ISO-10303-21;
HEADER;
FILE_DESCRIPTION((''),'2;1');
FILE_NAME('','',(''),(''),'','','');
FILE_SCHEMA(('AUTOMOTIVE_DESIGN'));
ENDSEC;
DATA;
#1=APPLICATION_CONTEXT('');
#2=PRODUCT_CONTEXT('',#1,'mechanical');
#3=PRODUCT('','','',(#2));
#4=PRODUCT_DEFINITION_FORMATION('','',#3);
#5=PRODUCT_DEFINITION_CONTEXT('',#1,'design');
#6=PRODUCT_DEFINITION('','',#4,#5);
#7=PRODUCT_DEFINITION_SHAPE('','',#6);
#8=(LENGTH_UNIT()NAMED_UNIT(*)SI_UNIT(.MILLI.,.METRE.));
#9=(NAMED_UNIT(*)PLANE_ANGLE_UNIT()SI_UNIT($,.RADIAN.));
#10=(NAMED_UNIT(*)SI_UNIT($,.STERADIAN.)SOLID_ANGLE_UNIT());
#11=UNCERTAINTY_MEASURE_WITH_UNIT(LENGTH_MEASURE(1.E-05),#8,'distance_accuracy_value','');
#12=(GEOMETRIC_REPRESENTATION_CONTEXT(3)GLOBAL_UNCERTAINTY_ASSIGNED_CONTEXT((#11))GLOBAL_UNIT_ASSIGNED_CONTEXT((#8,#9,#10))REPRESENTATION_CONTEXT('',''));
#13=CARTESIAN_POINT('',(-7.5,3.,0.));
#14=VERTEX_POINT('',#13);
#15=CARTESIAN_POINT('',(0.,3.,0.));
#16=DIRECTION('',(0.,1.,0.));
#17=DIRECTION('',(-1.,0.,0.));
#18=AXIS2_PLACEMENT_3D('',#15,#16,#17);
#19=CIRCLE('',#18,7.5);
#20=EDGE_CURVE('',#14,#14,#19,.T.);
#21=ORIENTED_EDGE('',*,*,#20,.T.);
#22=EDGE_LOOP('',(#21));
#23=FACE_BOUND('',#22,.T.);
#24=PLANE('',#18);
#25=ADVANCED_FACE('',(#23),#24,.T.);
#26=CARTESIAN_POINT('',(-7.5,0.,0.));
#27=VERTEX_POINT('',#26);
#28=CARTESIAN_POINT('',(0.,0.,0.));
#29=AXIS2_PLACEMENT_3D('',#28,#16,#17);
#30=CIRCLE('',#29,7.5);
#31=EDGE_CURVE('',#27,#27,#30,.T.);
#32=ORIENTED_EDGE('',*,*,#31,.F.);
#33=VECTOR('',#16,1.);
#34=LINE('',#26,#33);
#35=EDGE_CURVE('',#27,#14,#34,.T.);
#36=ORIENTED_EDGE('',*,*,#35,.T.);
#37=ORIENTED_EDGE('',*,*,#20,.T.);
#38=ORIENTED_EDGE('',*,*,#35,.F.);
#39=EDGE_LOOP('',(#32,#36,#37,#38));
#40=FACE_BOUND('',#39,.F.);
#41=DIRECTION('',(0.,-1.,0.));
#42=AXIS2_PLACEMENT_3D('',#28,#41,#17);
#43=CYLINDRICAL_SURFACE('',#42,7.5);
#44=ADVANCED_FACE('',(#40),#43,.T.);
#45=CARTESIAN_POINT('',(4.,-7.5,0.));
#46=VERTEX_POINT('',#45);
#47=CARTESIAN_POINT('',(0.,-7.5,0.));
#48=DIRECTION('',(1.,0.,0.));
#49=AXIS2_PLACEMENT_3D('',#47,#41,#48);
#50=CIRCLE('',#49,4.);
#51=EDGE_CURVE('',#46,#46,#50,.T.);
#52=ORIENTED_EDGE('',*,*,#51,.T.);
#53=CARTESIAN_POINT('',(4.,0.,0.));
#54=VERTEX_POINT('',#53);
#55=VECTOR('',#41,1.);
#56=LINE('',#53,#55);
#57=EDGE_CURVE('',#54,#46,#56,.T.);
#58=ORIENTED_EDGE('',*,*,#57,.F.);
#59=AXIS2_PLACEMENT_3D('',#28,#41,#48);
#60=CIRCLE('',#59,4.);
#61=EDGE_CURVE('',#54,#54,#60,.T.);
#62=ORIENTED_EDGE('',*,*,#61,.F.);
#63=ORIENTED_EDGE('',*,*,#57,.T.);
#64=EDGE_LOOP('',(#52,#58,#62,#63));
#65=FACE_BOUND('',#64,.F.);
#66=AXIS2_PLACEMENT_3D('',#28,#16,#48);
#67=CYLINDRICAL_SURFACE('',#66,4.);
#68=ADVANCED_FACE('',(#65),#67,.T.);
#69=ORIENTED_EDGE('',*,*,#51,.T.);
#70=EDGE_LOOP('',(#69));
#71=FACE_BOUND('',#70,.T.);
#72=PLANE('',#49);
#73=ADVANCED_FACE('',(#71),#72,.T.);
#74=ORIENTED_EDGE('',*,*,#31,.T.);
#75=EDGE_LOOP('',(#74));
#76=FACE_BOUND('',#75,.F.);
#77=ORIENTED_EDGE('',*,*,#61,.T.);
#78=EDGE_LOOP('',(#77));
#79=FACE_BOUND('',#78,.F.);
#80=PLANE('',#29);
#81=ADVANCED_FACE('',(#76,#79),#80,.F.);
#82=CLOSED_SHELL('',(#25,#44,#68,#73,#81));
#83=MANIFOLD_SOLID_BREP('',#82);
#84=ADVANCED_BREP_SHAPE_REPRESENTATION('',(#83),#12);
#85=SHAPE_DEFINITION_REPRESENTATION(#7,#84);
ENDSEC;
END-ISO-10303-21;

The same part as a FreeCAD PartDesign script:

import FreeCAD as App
import Part
import Sketcher
from FreeCAD import Vector
Q = App.Units.Quantity

doc = App.newDocument("Part")
body = doc.addObject("PartDesign::Body", "Body")

# Sketch on XZ plane
sketch1 = doc.addObject("Sketcher::SketchObject", "Sketch")
body.addObject(sketch1)
sketch1.AttachmentSupport = (doc.XZ_Plane, [""])
sketch1.MapMode = "FlatFace"
sketch1.addGeometry(Part.Circle(Vector(0, 0, 0), Vector(0, 0, 1), 7.5), False)
sketch1.addConstraint([
    Sketcher.Constraint("Coincident", 0, 3, -1, 1),
    Sketcher.Constraint("Diameter", 0, Q("15 mm")),
])
pad1 = doc.addObject("PartDesign::Pad", "Pad")
body.addObject(pad1)
pad1.Profile = sketch1
pad1.Length = 3
pad1.Reversed = True

# Sketch on XZ plane
sketch2 = doc.addObject("Sketcher::SketchObject", "Sketch001")
body.addObject(sketch2)
sketch2.AttachmentSupport = (doc.XZ_Plane, [""])
sketch2.MapMode = "FlatFace"
sketch2.addGeometry(Part.Circle(Vector(0, 0, 0), Vector(0, 0, 1), 4), False)
sketch2.addConstraint([
    Sketcher.Constraint("Coincident", 0, 3, -1, 1),
    Sketcher.Constraint("Diameter", 0, Q("8 mm")),
])
pad2 = doc.addObject("PartDesign::Pad", "Pad001")
body.addObject(pad2)
pad2.Profile = sketch2
pad2.Length = 7.5

doc.recompute()
